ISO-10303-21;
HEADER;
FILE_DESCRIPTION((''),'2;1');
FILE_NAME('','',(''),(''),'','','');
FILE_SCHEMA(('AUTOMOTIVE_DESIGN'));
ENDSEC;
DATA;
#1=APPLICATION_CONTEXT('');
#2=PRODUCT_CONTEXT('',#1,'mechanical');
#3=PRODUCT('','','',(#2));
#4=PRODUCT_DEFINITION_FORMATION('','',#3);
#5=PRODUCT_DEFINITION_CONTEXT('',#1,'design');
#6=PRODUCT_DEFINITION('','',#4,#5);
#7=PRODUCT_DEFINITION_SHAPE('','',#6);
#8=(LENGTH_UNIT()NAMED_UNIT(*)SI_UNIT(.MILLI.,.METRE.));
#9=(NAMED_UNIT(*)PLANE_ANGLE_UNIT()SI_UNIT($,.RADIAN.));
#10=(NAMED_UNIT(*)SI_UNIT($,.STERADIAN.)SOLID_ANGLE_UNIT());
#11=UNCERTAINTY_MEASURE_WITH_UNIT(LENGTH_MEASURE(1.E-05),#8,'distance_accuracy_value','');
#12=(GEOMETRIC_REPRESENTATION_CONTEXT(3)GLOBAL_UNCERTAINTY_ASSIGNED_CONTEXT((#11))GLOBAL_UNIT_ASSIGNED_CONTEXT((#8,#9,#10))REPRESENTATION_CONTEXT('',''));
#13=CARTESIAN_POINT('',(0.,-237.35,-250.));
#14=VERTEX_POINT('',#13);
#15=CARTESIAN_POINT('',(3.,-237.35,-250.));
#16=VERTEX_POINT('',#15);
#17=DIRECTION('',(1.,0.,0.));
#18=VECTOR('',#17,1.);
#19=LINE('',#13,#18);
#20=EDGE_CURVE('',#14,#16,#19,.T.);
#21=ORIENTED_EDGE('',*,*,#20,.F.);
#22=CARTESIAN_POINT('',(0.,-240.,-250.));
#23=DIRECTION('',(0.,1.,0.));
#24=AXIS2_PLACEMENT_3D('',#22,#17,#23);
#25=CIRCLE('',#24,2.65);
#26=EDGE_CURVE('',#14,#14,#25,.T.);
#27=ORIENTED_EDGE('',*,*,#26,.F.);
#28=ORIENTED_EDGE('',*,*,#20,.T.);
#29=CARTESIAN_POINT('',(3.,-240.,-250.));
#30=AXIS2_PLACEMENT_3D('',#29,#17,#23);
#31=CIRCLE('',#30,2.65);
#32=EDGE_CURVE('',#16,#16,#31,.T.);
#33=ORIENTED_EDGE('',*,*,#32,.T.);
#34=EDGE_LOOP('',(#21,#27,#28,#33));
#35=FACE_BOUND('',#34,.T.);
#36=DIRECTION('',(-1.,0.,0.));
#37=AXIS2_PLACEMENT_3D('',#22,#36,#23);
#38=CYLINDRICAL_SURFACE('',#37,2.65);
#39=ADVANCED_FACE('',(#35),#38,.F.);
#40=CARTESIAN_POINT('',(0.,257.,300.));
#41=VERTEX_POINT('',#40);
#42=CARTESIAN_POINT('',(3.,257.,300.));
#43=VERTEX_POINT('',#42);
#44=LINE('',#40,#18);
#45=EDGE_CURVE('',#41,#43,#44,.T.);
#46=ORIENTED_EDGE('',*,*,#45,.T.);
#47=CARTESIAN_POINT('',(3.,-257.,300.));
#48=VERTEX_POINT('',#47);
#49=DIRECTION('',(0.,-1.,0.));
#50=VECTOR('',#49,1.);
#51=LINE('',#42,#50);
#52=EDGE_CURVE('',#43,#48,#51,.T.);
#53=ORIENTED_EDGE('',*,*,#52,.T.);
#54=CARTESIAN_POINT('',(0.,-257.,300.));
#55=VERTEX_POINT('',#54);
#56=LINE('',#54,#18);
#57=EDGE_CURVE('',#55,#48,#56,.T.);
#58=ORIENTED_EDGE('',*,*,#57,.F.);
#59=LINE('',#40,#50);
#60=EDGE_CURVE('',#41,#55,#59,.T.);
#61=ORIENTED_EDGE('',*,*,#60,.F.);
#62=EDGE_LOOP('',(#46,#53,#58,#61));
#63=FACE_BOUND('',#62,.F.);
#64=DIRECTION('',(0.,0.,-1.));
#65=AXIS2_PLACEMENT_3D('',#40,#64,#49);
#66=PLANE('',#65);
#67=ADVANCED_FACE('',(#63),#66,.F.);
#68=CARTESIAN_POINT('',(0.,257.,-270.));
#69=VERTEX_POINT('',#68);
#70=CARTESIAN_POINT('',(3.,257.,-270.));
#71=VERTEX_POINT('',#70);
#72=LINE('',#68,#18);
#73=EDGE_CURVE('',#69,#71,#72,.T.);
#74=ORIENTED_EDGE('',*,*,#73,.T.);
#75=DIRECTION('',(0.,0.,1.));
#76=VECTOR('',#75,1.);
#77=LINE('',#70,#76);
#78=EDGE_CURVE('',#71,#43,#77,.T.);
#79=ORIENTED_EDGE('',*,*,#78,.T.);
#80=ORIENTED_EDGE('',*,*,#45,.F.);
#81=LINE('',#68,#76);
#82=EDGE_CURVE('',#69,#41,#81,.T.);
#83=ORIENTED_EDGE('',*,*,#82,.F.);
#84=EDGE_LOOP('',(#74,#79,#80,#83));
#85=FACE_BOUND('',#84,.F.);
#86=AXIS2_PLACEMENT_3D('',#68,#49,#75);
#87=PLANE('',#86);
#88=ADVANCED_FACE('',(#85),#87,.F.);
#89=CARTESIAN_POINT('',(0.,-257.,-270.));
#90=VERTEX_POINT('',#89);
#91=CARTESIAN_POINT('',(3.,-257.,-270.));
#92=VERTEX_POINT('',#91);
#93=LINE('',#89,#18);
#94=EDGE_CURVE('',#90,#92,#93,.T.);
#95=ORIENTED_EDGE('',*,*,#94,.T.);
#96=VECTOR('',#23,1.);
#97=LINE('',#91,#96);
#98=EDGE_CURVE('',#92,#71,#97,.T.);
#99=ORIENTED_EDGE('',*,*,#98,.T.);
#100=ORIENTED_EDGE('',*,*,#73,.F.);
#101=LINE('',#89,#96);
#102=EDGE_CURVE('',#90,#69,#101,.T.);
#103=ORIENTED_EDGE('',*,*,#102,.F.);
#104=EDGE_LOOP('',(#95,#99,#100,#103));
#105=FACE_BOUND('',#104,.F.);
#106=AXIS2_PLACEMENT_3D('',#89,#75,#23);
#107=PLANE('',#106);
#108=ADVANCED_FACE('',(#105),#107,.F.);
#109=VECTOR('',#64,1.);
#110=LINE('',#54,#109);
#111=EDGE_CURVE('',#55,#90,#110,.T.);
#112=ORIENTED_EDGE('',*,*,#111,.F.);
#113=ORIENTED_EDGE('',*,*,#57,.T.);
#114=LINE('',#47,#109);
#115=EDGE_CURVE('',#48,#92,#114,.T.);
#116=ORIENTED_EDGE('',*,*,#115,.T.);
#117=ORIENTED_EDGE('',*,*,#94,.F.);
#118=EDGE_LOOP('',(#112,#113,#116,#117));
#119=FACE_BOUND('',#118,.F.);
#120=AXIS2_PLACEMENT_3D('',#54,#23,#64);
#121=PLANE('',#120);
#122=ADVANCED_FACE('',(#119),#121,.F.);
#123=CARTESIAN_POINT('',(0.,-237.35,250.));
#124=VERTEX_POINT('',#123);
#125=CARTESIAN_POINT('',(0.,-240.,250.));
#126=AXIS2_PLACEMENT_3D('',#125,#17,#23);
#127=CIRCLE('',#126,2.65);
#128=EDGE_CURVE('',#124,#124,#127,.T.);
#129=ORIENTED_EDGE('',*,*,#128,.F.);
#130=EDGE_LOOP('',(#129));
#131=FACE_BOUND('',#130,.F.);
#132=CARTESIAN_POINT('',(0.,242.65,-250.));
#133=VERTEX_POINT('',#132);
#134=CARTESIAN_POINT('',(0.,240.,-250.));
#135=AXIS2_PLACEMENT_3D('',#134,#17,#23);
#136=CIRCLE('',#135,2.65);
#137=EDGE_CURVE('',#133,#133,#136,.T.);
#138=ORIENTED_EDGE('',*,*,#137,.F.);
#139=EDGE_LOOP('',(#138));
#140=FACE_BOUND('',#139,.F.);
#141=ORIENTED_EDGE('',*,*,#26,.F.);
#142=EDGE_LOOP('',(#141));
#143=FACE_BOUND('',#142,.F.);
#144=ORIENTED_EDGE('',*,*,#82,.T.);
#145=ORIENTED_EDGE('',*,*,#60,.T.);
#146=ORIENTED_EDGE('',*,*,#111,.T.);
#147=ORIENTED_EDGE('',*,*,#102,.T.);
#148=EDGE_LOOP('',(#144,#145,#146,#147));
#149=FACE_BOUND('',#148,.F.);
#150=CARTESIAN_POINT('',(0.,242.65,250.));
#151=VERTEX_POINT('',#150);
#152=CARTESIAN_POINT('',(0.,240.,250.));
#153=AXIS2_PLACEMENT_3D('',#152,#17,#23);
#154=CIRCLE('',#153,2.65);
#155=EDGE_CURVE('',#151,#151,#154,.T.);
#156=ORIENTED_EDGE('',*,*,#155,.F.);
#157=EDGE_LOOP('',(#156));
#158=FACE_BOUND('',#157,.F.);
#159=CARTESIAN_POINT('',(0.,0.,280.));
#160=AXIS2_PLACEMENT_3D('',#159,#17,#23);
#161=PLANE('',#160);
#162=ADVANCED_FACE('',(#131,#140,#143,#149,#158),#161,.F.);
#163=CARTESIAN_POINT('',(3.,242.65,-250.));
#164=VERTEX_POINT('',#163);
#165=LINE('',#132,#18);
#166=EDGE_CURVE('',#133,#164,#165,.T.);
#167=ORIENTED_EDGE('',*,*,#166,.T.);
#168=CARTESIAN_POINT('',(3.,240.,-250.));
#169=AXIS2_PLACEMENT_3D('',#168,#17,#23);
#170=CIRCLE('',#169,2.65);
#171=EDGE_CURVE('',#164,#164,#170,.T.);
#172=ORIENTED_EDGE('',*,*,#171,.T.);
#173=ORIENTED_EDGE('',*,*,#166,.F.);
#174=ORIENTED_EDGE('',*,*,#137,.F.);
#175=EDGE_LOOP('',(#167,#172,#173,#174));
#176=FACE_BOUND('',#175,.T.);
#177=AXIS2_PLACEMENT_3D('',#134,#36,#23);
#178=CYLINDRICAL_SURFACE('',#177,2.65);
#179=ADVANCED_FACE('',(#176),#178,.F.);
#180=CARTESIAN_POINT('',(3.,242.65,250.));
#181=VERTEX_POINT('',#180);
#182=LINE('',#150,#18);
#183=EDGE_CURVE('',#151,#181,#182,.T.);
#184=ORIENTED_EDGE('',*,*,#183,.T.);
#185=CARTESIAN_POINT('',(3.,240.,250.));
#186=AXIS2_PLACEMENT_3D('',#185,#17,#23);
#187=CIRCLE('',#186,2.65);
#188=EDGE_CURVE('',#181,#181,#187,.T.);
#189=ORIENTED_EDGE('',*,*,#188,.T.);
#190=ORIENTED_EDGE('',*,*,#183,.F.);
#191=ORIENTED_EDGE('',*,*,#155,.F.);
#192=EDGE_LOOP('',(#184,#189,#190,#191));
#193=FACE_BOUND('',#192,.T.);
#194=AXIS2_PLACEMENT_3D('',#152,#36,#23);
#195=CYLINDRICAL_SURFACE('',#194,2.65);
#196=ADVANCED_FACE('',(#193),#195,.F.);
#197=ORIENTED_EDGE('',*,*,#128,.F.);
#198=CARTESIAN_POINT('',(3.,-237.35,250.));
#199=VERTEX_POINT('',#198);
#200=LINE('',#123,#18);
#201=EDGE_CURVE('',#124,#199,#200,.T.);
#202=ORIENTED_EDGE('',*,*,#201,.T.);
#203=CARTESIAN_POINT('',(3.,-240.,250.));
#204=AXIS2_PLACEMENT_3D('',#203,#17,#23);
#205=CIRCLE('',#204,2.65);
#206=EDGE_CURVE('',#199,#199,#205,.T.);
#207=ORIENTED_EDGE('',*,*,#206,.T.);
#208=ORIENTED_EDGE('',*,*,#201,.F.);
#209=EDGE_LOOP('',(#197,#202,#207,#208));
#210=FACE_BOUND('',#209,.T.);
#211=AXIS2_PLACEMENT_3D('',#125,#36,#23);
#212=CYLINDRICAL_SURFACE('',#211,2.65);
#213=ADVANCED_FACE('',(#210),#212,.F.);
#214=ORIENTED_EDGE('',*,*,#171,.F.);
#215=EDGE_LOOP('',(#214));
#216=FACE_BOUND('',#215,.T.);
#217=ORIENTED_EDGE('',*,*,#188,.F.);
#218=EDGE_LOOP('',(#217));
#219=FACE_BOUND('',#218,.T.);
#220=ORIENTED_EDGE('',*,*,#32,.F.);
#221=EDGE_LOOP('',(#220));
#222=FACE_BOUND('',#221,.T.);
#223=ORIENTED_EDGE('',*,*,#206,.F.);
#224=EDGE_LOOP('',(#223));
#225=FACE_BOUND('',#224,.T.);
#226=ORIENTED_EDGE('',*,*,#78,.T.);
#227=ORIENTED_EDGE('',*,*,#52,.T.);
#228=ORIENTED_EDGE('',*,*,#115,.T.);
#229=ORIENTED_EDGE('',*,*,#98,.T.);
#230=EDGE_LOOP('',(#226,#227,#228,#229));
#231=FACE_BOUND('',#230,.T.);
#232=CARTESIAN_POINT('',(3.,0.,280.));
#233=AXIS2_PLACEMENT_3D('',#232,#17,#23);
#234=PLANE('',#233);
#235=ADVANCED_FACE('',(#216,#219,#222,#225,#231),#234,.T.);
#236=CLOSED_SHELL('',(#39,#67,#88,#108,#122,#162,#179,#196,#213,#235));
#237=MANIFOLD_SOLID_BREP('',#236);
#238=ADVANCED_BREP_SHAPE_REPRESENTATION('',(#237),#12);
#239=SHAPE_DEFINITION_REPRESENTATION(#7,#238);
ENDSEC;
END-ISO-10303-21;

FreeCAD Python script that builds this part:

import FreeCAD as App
import Part
import Sketcher
from FreeCAD import Vector


def add_polygon(sketch, points):
    """Adds a closed chain of lines whose ends are joined by coincident constraints."""
    first, n = sketch.GeometryCount, len(points)
    for a, b in zip(points, points[1:] + points[:1]):
        sketch.addGeometry(Part.LineSegment(App.Vector(*a, 0), App.Vector(*b, 0)), False)
    for i in range(n):
        sketch.addConstraint(Sketcher.Constraint("Coincident", first + i, 2, first + (i + 1) % n, 1))

doc = App.newDocument("Part")
body = doc.addObject("PartDesign::Body", "Body")

sketch1 = body.newObject("Sketcher::SketchObject", "Sketch")
sketch1.AttachmentSupport = (doc.getObject("YZ_Plane"), [""])
sketch1.MapMode = "FlatFace"
add_polygon(sketch1, [(-257, 300), (-257, -270), (257, -270), (257, 300)])
sketch1.addGeometry(Part.Circle(Vector(-240, -250, 0), Vector(0, 0, 1), 2.6), False)
sketch1.addGeometry(Part.Circle(Vector(240, -250, 0), Vector(0, 0, 1), 2.6), False)
sketch1.addGeometry(Part.Circle(Vector(-240, 250, 0), Vector(0, 0, 1), 2.6), False)
sketch1.addGeometry(Part.Circle(Vector(240, 250, 0), Vector(0, 0, 1), 2.6), False)
sketch1.addConstraint([
    Sketcher.Constraint("Vertical", 0),
    Sketcher.Constraint("Horizontal", 1),
    Sketcher.Constraint("Vertical", 2),
    Sketcher.Constraint("Horizontal", 3),
    Sketcher.Constraint("Equal", 4, 5),
    Sketcher.Constraint("Equal", 5, 6),
    Sketcher.Constraint("Equal", 6, 7),
    Sketcher.Constraint("Symmetric", 5, 3, 6, 3, -1, 1),
    Sketcher.Constraint("Symmetric", 4, 3, 7, 3, -1, 1),
    Sketcher.Constraint("Symmetric", 4, 3, 5, 3, -2),
    Sketcher.Constraint("Diameter", 4, 5.3),
    Sketcher.Constraint("DistanceX", 1, 1, 1, 2, 514.0),
    Sketcher.Constraint("DistanceY", 0, 2, 0, 1, 570.0),
    Sketcher.Constraint("DistanceX", 4, 3, -1, 1, 240.0),
    Sketcher.Constraint("DistanceY", 4, 3, -1, 1, 250.0),
    Sketcher.Constraint("DistanceX", 0, 2, -1, 1, 257.0),
    Sketcher.Constraint("DistanceY", 0, 2, -1, 1, 270.0),
])
pad1 = body.newObject("PartDesign::Pad", "Pad")
pad1.Profile = sketch1
pad1.Length = 3

doc.recompute()
